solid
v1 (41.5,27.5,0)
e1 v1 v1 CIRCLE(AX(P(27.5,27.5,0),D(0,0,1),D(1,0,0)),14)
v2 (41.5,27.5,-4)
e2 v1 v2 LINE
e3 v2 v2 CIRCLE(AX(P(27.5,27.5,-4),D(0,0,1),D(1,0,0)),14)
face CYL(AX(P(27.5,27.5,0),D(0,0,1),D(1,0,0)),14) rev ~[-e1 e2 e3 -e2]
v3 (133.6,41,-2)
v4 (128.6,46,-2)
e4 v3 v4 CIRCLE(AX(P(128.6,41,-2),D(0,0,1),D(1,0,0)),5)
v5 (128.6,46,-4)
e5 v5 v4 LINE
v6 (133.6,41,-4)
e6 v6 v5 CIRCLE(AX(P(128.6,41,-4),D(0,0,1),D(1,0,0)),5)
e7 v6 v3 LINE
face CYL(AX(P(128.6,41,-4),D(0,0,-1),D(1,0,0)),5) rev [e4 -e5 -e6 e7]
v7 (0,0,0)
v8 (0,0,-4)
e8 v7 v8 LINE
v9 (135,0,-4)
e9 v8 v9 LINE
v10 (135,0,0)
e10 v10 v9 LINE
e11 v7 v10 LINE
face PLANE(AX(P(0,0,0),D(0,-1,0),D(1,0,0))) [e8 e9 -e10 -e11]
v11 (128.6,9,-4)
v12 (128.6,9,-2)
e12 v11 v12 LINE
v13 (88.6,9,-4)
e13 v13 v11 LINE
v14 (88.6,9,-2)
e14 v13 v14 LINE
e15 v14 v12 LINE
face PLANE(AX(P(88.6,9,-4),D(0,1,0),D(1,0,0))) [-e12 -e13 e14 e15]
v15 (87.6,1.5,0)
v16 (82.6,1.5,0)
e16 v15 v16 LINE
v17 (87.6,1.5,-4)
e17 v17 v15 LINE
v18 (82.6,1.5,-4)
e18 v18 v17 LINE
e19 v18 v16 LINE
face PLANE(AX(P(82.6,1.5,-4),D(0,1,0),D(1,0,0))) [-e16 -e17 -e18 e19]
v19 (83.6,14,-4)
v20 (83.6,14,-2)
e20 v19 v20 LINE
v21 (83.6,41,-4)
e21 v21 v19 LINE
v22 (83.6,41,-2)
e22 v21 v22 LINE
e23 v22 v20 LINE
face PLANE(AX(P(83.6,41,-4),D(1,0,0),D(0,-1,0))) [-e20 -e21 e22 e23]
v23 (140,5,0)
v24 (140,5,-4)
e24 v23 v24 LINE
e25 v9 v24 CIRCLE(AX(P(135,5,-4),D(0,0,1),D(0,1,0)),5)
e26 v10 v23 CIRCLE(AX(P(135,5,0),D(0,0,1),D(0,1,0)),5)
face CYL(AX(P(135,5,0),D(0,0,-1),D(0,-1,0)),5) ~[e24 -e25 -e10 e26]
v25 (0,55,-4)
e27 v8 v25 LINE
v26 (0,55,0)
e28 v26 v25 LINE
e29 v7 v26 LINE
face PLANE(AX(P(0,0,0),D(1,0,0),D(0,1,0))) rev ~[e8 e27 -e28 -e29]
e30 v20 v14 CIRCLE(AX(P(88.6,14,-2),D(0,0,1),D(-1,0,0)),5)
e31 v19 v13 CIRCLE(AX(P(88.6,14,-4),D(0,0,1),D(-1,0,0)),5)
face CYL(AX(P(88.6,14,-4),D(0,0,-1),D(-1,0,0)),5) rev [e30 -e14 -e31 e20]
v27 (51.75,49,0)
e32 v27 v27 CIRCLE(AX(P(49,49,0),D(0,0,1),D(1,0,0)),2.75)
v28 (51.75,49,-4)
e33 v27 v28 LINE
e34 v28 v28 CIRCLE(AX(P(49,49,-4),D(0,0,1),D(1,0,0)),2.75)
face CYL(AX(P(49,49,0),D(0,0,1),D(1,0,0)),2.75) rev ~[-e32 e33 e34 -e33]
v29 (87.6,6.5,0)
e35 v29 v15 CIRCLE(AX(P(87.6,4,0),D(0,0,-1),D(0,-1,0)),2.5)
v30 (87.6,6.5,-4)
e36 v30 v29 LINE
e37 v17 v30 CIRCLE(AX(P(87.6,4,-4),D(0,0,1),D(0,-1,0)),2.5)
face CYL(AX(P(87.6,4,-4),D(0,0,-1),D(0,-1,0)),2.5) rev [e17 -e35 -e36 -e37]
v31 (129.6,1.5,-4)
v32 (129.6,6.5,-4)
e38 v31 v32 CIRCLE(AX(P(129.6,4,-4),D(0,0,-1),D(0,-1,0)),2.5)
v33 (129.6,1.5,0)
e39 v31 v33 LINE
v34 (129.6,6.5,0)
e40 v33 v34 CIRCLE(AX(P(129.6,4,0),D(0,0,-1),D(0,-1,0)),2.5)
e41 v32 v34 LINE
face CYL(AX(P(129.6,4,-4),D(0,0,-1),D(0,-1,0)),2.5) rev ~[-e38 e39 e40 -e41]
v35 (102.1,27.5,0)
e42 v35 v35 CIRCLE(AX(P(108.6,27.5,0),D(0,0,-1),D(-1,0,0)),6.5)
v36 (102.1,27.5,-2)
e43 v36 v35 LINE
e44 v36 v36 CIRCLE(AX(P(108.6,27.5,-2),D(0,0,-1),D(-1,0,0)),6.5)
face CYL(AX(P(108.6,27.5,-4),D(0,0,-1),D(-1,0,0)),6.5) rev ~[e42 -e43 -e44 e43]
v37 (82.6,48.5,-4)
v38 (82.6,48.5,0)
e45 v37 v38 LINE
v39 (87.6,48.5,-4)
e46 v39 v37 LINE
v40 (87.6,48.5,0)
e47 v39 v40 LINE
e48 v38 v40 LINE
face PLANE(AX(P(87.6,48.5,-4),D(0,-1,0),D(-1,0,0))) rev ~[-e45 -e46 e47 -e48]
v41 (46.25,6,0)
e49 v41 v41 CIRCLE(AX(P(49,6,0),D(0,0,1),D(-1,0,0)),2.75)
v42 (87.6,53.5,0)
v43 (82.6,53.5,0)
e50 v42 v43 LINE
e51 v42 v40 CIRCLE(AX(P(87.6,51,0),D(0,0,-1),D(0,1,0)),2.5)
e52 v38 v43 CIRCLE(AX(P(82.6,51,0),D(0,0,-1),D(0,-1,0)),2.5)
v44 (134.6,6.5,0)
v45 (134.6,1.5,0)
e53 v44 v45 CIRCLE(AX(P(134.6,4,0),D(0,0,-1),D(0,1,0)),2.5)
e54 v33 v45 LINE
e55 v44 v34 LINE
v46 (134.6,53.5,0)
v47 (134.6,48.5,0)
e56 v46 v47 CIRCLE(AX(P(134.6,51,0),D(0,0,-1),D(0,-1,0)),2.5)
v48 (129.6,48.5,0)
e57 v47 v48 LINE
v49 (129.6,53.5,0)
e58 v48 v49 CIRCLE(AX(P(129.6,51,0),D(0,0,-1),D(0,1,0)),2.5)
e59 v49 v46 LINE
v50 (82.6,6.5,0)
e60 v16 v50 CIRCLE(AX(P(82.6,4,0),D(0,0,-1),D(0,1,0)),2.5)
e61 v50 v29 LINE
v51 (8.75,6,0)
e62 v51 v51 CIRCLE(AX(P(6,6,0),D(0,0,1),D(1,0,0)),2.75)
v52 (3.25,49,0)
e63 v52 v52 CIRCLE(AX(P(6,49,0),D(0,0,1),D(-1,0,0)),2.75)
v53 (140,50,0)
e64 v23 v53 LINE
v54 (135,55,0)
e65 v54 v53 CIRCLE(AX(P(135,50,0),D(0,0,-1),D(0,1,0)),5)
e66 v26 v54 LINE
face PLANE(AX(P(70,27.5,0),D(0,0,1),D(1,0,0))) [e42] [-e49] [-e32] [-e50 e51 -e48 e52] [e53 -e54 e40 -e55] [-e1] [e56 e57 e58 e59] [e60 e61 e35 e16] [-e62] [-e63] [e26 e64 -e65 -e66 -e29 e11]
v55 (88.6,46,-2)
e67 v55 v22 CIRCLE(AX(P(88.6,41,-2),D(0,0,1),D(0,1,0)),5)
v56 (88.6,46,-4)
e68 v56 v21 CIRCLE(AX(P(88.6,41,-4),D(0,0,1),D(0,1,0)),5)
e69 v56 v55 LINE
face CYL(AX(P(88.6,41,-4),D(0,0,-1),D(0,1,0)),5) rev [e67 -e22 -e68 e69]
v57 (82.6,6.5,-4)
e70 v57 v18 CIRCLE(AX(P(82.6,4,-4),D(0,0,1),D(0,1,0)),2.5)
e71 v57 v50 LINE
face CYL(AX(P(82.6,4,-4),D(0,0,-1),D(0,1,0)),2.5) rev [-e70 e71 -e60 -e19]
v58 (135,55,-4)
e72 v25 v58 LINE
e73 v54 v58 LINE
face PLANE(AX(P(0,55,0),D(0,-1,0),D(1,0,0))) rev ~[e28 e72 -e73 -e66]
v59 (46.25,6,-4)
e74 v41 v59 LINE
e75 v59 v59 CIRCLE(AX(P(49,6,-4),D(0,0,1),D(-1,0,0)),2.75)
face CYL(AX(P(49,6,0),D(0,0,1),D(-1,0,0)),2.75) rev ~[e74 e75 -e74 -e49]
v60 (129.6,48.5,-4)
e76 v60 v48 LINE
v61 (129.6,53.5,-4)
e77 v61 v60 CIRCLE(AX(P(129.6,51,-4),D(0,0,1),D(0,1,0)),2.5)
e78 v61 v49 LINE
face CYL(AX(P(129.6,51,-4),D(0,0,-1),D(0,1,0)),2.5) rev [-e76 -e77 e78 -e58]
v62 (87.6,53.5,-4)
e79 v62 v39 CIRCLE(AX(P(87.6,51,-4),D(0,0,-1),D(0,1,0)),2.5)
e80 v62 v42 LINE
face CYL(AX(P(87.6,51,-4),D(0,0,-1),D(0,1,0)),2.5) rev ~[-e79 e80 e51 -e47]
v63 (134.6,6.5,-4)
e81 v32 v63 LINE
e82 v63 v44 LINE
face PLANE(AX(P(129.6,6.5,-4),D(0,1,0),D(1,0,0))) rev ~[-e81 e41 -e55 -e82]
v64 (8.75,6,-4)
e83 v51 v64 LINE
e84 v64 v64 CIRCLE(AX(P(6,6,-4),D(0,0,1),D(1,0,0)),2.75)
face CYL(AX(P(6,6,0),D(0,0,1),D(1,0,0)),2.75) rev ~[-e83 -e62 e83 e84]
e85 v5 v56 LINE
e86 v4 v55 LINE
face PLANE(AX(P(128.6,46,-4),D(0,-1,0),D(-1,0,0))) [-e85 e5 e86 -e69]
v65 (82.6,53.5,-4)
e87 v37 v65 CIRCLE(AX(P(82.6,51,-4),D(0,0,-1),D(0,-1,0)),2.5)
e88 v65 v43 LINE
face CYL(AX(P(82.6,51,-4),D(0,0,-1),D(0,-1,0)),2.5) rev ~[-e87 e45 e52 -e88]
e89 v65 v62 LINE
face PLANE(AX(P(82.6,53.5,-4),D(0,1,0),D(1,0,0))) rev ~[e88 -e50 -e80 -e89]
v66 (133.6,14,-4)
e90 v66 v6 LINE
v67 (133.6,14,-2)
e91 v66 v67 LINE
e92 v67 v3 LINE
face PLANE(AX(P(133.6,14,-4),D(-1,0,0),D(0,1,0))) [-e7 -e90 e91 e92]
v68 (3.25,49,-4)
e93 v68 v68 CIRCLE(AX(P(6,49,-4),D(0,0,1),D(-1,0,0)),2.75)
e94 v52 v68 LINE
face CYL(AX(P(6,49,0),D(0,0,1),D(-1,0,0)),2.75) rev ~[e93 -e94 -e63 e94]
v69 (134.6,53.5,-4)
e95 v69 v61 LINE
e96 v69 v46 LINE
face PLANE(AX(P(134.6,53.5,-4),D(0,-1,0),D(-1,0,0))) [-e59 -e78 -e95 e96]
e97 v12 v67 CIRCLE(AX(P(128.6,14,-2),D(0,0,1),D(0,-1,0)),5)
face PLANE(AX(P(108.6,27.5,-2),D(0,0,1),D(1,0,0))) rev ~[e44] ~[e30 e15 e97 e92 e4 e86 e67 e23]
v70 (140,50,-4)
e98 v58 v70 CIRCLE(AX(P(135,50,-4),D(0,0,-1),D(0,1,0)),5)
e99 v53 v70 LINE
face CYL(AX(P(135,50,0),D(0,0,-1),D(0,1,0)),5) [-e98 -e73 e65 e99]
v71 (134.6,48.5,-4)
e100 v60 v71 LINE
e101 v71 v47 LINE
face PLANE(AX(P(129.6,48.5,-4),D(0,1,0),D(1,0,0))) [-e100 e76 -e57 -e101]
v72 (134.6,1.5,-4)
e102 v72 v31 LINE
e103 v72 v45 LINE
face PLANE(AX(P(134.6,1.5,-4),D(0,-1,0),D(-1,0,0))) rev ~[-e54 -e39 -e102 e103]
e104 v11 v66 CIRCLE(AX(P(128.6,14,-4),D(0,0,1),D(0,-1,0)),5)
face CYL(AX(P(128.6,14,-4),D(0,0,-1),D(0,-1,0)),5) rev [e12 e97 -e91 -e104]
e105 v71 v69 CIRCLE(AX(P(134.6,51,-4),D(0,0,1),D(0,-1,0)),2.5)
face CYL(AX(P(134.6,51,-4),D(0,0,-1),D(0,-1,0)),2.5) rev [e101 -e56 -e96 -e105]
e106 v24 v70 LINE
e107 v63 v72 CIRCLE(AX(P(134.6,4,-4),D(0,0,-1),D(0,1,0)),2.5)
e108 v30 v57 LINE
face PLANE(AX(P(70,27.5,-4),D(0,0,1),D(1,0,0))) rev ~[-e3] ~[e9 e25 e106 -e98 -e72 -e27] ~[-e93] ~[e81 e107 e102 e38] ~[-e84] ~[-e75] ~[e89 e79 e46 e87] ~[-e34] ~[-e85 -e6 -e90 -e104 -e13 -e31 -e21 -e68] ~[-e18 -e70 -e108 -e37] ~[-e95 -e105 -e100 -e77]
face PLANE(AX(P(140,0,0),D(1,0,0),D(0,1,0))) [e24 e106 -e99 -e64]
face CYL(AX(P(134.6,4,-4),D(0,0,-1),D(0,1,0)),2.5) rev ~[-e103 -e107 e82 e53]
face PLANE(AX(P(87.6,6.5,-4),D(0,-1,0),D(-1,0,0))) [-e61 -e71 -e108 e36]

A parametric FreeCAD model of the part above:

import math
import FreeCAD as App
import Part
import Sketcher

V = App.Vector
Q = App.Units.Quantity


def edges_at(feature, points):
    """Names of the edges that pass closest to the given points."""
    edges = feature.Shape.Edges
    near = lambda p: min(range(len(edges)), key=lambda i: edges[i].distToShape(Part.Vertex(*p))[0])
    return sorted({f"Edge{near(p) + 1}" for p in points})


def add_polygon(sketch, points):
    """Adds a closed chain of lines whose ends are joined by coincident constraints."""
    first, n = sketch.GeometryCount, len(points)
    for a, b in zip(points, points[1:] + points[:1]):
        sketch.addGeometry(Part.LineSegment(App.Vector(*a, 0), App.Vector(*b, 0)), False)
    for i in range(n):
        sketch.addConstraint(Sketcher.Constraint("Coincident", first + i, 2, first + (i + 1) % n, 1))

doc = App.newDocument("Part")
body = doc.addObject("PartDesign::Body", "Body")

# Sketch on XY plane
sketch1 = doc.addObject("Sketcher::SketchObject", "Sketch")
body.addObject(sketch1)
sketch1.AttachmentSupport = (doc.XY_Plane, [""])
sketch1.MapMode = "FlatFace"
add_polygon(sketch1, [(0, 55), (0, 0), (140, 0), (140, 55)])  # lines 0-3
sketch1.addConstraint(Sketcher.Constraint("Vertical", 0))
sketch1.addConstraint(Sketcher.Constraint("Horizontal", 1))
sketch1.addConstraint(Sketcher.Constraint("Vertical", 2))
sketch1.addConstraint(Sketcher.Constraint("Horizontal", 3))
sketch1.addConstraint(Sketcher.Constraint("Coincident", 0, 2, -1, 1))
sketch1.addConstraint(Sketcher.Constraint("DistanceX", 1, 1, 1, 2, Q("140 mm")))
sketch1.addConstraint(Sketcher.Constraint("DistanceY", 0, 2, 0, 1, Q("55 mm")))
pad1 = doc.addObject("PartDesign::Pad", "Pad")
body.addObject(pad1)
pad1.Profile = sketch1
pad1.Length = 4
pad1.Reversed = True

# Sketch on XY plane
sketch2 = doc.addObject("Sketcher::SketchObject", "Sketch001")
body.addObject(sketch2)
sketch2.AttachmentSupport = (doc.XY_Plane, [""])
sketch2.MapMode = "FlatFace"
sketch2.addGeometry(Part.Circle(V(27.5, 27.5, 0), V(0, 0, 1), 14), False)
sketch2.addGeometry(Part.Circle(V(6, 6, 0), V(0, 0, 1), 2.8), False)
sketch2.addGeometry(Part.Circle(V(49, 6, 0), V(0, 0, 1), 2.8), False)
sketch2.addGeometry(Part.Circle(V(49, 49, 0), V(0, 0, 1), 2.8), False)
sketch2.addGeometry(Part.Circle(V(6, 49, 0), V(0, 0, 1), 2.8), False)
sketch2.addConstraint(Sketcher.Constraint("Equal", 1, 2))
sketch2.addConstraint(Sketcher.Constraint("Equal", 2, 3))
sketch2.addConstraint(Sketcher.Constraint("Equal", 3, 4))
sketch2.addConstraint(Sketcher.Constraint("Horizontal", 1, 3, 2, 3))
sketch2.addConstraint(Sketcher.Constraint("Horizontal", 3, 3, 4, 3))
sketch2.addConstraint(Sketcher.Constraint("Vertical", 2, 3, 3, 3))
sketch2.addConstraint(Sketcher.Constraint("Vertical", 1, 3, 4, 3))
sketch2.addConstraint(Sketcher.Constraint("Diameter", 0, Q("28 mm")))
sketch2.addConstraint(Sketcher.Constraint("Diameter", 1, Q("5.5 mm")))
sketch2.addConstraint(Sketcher.Constraint("DistanceX", -1, 1, 1, 3, Q("6 mm")))
sketch2.addConstraint(Sketcher.Constraint("DistanceY", -1, 1, 1, 3, Q("6 mm")))
sketch2.addConstraint(Sketcher.Constraint("DistanceX", -1, 1, 2, 3, Q("49 mm")))
sketch2.addConstraint(Sketcher.Constraint("DistanceY", -1, 1, 3, 3, Q("49 mm")))
sketch2.addConstraint(Sketcher.Constraint("DistanceX", -1, 1, 0, 3, Q("27.5 mm")))
sketch2.addConstraint(Sketcher.Constraint("DistanceY", -1, 1, 0, 3, Q("27.5 mm")))
pocket1 = doc.addObject("PartDesign::Pocket", "Pocket")
body.addObject(pocket1)
pocket1.Profile = sketch2
pocket1.Type = "ThroughAll"
doc.recompute()

fillet = doc.addObject("PartDesign::Fillet", "Fillet")
body.addObject(fillet)
fillet.Base = (pocket1, edges_at(pocket1, [(140, 55, -2), (140, 0, -2)]))
fillet.Radius = 5

# Sketch on XY plane
sketch3 = doc.addObject("Sketcher::SketchObject", "Sketch002")
body.addObject(sketch3)
sketch3.AttachmentSupport = (doc.XY_Plane, [""])
sketch3.MapMode = "FlatFace"
sketch3.AttachmentOffset = App.Placement(V(0, 0, -4), App.Rotation())
sketch3.addGeometry(Part.Circle(V(108.6, 27.5, 0), V(0, 0, 1), 6.5), False)
sketch3.addGeometry(Part.LineSegment(V(129.6, 53.5, 0), V(134.6, 53.5, 0)), False)
sketch3.addGeometry(Part.ArcOfCircle(Part.Circle(V(134.6, 51, 0), V(0, 0, 1), 2.5), math.radians(-90), math.radians(90)), False)
sketch3.addGeometry(Part.LineSegment(V(134.6, 48.5, 0), V(129.6, 48.5, 0)), False)
sketch3.addGeometry(Part.ArcOfCircle(Part.Circle(V(129.6, 51, 0), V(0, 0, 1), 2.5), math.radians(90), math.radians(270)), False)
sketch3.addGeometry(Part.LineSegment(V(82.6, 53.5, 0), V(87.6, 53.5, 0)), False)
sketch3.addGeometry(Part.ArcOfCircle(Part.Circle(V(87.6, 51, 0), V(0, 0, 1), 2.5), math.radians(-90), math.radians(90)), False)
sketch3.addGeometry(Part.LineSegment(V(87.6, 48.5, 0), V(82.6, 48.5, 0)), False)
sketch3.addGeometry(Part.ArcOfCircle(Part.Circle(V(82.6, 51, 0), V(0, 0, 1), 2.5), math.radians(90), math.radians(270)), False)
sketch3.addGeometry(Part.LineSegment(V(134.6, 1.5, 0), V(129.6, 1.5, 0)), False)
sketch3.addGeometry(Part.ArcOfCircle(Part.Circle(V(129.6, 4, 0), V(0, 0, 1), 2.5), math.radians(90), math.radians(270)), False)
sketch3.addGeometry(Part.LineSegment(V(129.6, 6.5, 0), V(134.6, 6.5, 0)), False)
sketch3.addGeometry(Part.ArcOfCircle(Part.Circle(V(134.6, 4, 0), V(0, 0, 1), 2.5), math.radians(-90), math.radians(90)), False)
sketch3.addGeometry(Part.LineSegment(V(87.6, 1.5, 0), V(82.6, 1.5, 0)), False)
sketch3.addGeometry(Part.ArcOfCircle(Part.Circle(V(82.6, 4, 0), V(0, 0, 1), 2.5), math.radians(90), math.radians(270)), False)
sketch3.addGeometry(Part.LineSegment(V(82.6, 6.5, 0), V(87.6, 6.5, 0)), False)
sketch3.addGeometry(Part.ArcOfCircle(Part.Circle(V(87.6, 4, 0), V(0, 0, 1), 2.5), math.radians(-90), math.radians(90)), False)
sketch3.addConstraint(Sketcher.Constraint("Tangent", 1, 2, 2, 2))
sketch3.addConstraint(Sketcher.Constraint("Tangent", 2, 1, 3, 1))
sketch3.addConstraint(Sketcher.Constraint("Tangent", 3, 2, 4, 2))
sketch3.addConstraint(Sketcher.Constraint("Tangent", 4, 1, 1, 1))
sketch3.addConstraint(Sketcher.Constraint("Tangent", 5, 2, 6, 2))
sketch3.addConstraint(Sketcher.Constraint("Tangent", 6, 1, 7, 1))
sketch3.addConstraint(Sketcher.Constraint("Tangent", 7, 2, 8, 2))
sketch3.addConstraint(Sketcher.Constraint("Tangent", 8, 1, 5, 1))
sketch3.addConstraint(Sketcher.Constraint("Tangent", 9, 2, 10, 2))
sketch3.addConstraint(Sketcher.Constraint("Tangent", 10, 1, 11, 1))
sketch3.addConstraint(Sketcher.Constraint("Tangent", 11, 2, 12, 2))
sketch3.addConstraint(Sketcher.Constraint("Tangent", 12, 1, 9, 1))
sketch3.addConstraint(Sketcher.Constraint("Tangent", 13, 2, 14, 2))
sketch3.addConstraint(Sketcher.Constraint("Tangent", 14, 1, 15, 1))
sketch3.addConstraint(Sketcher.Constraint("Tangent", 15, 2, 16, 2))
sketch3.addConstraint(Sketcher.Constraint("Tangent", 16, 1, 13, 1))
sketch3.addConstraint(Sketcher.Constraint("Horizontal", 1))
sketch3.addConstraint(Sketcher.Constraint("Horizontal", 3))
sketch3.addConstraint(Sketcher.Constraint("Horizontal", 5))
sketch3.addConstraint(Sketcher.Constraint("Horizontal", 7))
sketch3.addConstraint(Sketcher.Constraint("Horizontal", 9))
sketch3.addConstraint(Sketcher.Constraint("Horizontal", 11))
sketch3.addConstraint(Sketcher.Constraint("Horizontal", 13))
sketch3.addConstraint(Sketcher.Constraint("Horizontal", 15))
sketch3.addConstraint(Sketcher.Constraint("Equal", 4, 6))
sketch3.addConstraint(Sketcher.Constraint("Equal", 8, 10))
sketch3.addConstraint(Sketcher.Constraint("Equal", 12, 14))
sketch3.addConstraint(Sketcher.Constraint("Horizontal", 4, 3, 6, 3))
sketch3.addConstraint(Sketcher.Constraint("Horizontal", 12, 3, 14, 3))
sketch3.addConstraint(Sketcher.Constraint("Vertical", 4, 3, 10, 3))
sketch3.addConstraint(Sketcher.Constraint("Vertical", 2, 3, 12, 3))
sketch3.addConstraint(Sketcher.Constraint("Vertical", 8, 3, 14, 3))
sketch3.addConstraint(Sketcher.Constraint("Vertical", 6, 3, 16, 3))
sketch3.addConstraint(Sketcher.Constraint("Equal", 3, 5))
sketch3.addConstraint(Sketcher.Constraint("Diameter", 0, Q("13 mm")))
sketch3.addConstraint(Sketcher.Constraint("Radius", 2, Q("2.5 mm")))
sketch3.addConstraint(Sketcher.Constraint("DistanceX", 1, 1, 1, 2, Q("5 mm")))
sketch3.addConstraint(Sketcher.Constraint("DistanceY", -1, 1, 2, 3, Q("51 mm")))
sketch3.addConstraint(Sketcher.Constraint("DistanceY", -1, 1, 10, 3, Q("4 mm")))
sketch3.addConstraint(Sketcher.Constraint("DistanceX", 0, 3, 2, 3, Q("26 mm")))
sketch3.addConstraint(Sketcher.Constraint("DistanceX", 6, 3, 0, 3, Q("21 mm")))
sketch3.addConstraint(Sketcher.Constraint("DistanceY", 0, 3, 1, 2, Q("26 mm")))
sketch3.addConstraint(Sketcher.Constraint("DistanceX", -1, 1, 0, 3, Q("108.6 mm")))
pocket2 = doc.addObject("PartDesign::Pocket", "Pocket001")
body.addObject(pocket2)
pocket2.Profile = sketch3
pocket2.Type = "ThroughAll"
pocket2.Reversed = True

# Sketch on XY plane
sketch4 = doc.addObject("Sketcher::SketchObject", "Sketch003")
body.addObject(sketch4)
sketch4.AttachmentSupport = (doc.XY_Plane, [""])
sketch4.MapMode = "FlatFace"
sketch4.AttachmentOffset = App.Placement(V(0, 0, -4), App.Rotation())
sketch4.addGeometry(Part.LineSegment(V(129, 9, 0), V(89, 9, 0)), False)
sketch4.addGeometry(Part.ArcOfCircle(Part.Circle(V(89, 14, 0), V(0, 0, 1), 5), math.radians(180), math.radians(270)), False)
sketch4.addGeometry(Part.LineSegment(V(84, 14, 0), V(84, 41, 0)), False)
sketch4.addGeometry(Part.ArcOfCircle(Part.Circle(V(89, 41, 0), V(0, 0, 1), 5), math.radians(90), math.radians(180)), False)
sketch4.addGeometry(Part.LineSegment(V(89, 46, 0), V(129, 46, 0)), False)
sketch4.addGeometry(Part.ArcOfCircle(Part.Circle(V(129, 41, 0), V(0, 0, 1), 5), math.radians(0), math.radians(90)), False)
sketch4.addGeometry(Part.LineSegment(V(134, 41, 0), V(134, 14, 0)), False)
sketch4.addGeometry(Part.ArcOfCircle(Part.Circle(V(129, 14, 0), V(0, 0, 1), 5), math.radians(-90), math.radians(0)), False)
sketch4.addConstraint(Sketcher.Constraint("Tangent", 0, 2, 1, 2))
sketch4.addConstraint(Sketcher.Constraint("Tangent", 1, 1, 2, 1))
sketch4.addConstraint(Sketcher.Constraint("Tangent", 2, 2, 3, 2))
sketch4.addConstraint(Sketcher.Constraint("Tangent", 3, 1, 4, 1))
sketch4.addConstraint(Sketcher.Constraint("Tangent", 4, 2, 5, 2))
sketch4.addConstraint(Sketcher.Constraint("Tangent", 5, 1, 6, 1))
sketch4.addConstraint(Sketcher.Constraint("Tangent", 6, 2, 7, 2))
sketch4.addConstraint(Sketcher.Constraint("Tangent", 7, 1, 0, 1))
sketch4.addConstraint(Sketcher.Constraint("Horizontal", 0))
sketch4.addConstraint(Sketcher.Constraint("Vertical", 2))
sketch4.addConstraint(Sketcher.Constraint("Horizontal", 4))
sketch4.addConstraint(Sketcher.Constraint("Vertical", 6))
sketch4.addConstraint(Sketcher.Constraint("Equal", 1, 3))
sketch4.addConstraint(Sketcher.Constraint("Equal", 3, 5))
sketch4.addConstraint(Sketcher.Constraint("Equal", 5, 7))
sketch4.addConstraint(Sketcher.Constraint("Radius", 1, Q("5 mm")))
sketch4.addConstraint(Sketcher.Constraint("DistanceX", 0, 2, 0, 1, Q("40 mm")))
sketch4.addConstraint(Sketcher.Constraint("DistanceY", 2, 1, 2, 2, Q("27 mm")))
sketch4.addConstraint(Sketcher.Constraint("DistanceY", -1, 1, 1, 3, Q("14 mm")))
sketch4.addConstraint(Sketcher.Constraint("DistanceX", -1, 1, 1, 3, Q("88.6 mm")))
pocket3 = doc.addObject("PartDesign::Pocket", "Pocket002")
body.addObject(pocket3)
pocket3.Profile = sketch4
pocket3.Length = 2
pocket3.Reversed = True

doc.recompute()
